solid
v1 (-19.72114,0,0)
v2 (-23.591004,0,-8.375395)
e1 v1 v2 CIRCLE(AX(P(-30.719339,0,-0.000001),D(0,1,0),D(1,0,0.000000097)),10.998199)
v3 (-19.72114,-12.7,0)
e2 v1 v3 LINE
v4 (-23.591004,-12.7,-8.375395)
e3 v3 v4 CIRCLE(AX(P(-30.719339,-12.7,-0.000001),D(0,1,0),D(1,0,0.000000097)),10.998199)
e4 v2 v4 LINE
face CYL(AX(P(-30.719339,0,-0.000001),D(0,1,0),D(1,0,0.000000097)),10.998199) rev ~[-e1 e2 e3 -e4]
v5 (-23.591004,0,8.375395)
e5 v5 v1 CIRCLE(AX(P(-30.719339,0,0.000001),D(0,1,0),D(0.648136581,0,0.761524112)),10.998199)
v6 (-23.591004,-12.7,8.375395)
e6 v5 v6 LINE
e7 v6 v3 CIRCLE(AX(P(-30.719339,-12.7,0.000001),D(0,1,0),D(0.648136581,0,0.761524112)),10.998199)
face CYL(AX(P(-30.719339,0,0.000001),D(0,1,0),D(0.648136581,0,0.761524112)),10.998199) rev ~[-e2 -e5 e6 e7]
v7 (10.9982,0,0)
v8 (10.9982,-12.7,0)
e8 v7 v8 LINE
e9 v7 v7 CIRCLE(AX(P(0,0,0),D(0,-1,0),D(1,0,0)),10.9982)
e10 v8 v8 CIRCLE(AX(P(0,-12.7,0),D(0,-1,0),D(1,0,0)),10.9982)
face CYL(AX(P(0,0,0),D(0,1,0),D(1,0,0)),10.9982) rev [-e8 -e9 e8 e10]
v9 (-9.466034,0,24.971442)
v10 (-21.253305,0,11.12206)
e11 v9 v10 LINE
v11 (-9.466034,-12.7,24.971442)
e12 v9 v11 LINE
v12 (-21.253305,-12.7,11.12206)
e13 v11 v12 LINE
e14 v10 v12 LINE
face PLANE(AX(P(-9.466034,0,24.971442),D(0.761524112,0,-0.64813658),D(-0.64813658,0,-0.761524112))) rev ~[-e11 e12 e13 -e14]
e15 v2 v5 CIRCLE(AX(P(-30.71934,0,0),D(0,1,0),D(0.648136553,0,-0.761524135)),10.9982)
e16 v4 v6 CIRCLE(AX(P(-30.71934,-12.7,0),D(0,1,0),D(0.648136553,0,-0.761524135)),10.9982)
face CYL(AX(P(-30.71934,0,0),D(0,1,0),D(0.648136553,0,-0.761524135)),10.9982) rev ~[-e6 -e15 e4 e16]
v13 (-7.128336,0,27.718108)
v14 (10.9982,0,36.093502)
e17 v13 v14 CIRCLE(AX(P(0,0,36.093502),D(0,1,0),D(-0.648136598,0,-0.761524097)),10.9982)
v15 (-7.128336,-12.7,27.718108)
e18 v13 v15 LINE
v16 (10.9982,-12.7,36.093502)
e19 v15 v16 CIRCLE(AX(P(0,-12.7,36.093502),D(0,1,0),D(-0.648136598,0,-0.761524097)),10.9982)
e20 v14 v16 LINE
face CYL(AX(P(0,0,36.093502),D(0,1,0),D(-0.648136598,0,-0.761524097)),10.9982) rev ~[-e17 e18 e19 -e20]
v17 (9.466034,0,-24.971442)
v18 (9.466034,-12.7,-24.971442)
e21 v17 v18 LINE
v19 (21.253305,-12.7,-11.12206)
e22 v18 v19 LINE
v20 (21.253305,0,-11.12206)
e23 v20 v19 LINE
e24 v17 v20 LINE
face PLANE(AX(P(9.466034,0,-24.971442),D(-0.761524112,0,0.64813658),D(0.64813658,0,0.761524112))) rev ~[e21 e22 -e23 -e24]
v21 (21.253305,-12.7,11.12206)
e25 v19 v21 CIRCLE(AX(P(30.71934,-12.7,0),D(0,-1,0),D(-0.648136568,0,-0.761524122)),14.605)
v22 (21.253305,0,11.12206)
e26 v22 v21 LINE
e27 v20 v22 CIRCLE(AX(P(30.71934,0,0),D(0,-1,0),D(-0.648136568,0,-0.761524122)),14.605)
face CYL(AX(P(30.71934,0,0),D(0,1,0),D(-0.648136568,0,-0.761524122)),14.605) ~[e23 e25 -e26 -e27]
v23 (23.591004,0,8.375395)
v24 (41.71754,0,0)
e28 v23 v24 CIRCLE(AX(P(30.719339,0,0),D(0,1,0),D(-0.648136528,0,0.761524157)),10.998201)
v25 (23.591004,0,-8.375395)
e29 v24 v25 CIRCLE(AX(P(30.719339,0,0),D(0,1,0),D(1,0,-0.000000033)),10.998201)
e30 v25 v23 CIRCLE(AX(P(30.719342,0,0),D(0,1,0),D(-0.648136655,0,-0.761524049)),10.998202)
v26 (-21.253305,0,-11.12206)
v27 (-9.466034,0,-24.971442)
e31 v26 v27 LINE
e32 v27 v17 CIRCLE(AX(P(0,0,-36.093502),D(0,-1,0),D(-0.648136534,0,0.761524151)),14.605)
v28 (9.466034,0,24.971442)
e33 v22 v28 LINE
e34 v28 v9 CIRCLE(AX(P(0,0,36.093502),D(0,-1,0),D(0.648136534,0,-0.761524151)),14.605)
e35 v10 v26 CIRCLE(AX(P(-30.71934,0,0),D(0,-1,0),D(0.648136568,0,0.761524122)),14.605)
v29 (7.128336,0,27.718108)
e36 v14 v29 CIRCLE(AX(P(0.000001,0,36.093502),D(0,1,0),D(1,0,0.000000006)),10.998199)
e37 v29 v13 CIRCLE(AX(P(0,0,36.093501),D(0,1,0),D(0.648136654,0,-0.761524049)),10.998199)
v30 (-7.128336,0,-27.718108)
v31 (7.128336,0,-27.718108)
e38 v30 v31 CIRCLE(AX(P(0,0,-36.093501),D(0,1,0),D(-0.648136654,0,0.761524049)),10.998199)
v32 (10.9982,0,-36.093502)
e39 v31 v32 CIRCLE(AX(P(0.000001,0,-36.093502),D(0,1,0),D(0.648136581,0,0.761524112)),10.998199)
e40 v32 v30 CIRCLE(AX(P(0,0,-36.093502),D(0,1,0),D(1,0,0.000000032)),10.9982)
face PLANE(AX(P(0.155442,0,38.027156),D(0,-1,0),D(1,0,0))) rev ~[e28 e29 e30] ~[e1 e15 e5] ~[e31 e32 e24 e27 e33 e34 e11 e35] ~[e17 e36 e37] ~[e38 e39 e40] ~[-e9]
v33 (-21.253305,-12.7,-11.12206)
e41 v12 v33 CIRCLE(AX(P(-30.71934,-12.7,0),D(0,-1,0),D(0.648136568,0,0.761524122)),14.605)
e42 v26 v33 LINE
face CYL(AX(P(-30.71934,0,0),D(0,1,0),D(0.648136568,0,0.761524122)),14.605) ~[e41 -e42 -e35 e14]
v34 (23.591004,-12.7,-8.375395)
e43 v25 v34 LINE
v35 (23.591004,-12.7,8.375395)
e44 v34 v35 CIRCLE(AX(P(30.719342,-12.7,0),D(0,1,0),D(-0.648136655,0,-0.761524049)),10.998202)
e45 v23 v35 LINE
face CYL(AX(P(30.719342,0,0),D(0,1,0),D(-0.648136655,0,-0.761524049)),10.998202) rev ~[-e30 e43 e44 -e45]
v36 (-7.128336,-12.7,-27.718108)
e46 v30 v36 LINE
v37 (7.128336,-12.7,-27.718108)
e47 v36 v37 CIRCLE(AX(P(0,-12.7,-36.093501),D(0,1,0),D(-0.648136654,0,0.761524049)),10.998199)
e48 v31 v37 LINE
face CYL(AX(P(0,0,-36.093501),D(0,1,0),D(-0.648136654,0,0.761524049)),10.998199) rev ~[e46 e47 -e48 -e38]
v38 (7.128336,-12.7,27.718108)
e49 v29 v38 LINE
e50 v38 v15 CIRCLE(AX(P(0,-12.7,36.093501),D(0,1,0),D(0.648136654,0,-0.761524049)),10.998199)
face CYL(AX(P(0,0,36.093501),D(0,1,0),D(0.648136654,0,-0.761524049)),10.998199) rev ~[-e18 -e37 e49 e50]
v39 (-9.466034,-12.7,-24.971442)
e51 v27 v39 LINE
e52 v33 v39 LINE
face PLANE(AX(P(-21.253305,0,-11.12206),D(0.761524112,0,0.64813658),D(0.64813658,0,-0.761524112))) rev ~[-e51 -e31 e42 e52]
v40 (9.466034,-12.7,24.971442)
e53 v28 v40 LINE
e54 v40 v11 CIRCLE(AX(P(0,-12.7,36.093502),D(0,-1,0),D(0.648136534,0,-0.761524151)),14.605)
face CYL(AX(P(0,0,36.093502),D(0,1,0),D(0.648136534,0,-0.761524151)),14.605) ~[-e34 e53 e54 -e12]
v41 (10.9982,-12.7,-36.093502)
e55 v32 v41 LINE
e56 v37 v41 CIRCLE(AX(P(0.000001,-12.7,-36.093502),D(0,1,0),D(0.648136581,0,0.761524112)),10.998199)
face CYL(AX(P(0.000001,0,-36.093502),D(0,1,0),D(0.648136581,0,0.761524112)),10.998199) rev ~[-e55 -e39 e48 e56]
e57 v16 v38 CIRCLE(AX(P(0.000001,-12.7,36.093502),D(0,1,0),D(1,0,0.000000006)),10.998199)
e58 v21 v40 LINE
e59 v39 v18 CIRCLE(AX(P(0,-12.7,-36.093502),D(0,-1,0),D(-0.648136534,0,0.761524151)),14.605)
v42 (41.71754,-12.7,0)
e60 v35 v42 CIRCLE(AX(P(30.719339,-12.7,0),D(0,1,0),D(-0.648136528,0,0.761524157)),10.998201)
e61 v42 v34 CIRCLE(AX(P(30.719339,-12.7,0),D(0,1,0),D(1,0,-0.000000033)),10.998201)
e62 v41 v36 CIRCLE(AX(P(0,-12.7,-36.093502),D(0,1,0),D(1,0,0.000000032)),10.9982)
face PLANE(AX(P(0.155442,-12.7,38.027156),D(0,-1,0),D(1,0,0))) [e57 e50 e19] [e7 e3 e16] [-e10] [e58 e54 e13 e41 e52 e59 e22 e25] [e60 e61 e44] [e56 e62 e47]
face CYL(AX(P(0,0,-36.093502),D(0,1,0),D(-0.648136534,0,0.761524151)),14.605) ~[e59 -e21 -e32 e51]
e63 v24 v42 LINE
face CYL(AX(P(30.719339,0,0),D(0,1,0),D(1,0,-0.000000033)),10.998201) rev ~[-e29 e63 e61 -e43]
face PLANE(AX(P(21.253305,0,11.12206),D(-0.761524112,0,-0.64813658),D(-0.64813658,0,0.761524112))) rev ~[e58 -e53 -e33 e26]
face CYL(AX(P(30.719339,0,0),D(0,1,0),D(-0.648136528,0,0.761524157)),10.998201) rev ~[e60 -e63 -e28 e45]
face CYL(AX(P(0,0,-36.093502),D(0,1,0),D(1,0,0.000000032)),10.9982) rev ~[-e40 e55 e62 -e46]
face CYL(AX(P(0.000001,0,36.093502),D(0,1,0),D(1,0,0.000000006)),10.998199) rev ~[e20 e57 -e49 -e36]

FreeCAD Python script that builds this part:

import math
import FreeCAD as App
import Part
import Sketcher
Q = App.Units.Quantity

doc = App.newDocument("Part")
body = doc.addObject("PartDesign::Body", "Body")

sketch1 = body.newObject("Sketcher::SketchObject", "Sketch")
sketch1.AttachmentSupport = (doc.getObject("XZ_Plane"), [""])
sketch1.MapMode = "FlatFace"
sketch1.addGeometry(Part.ArcOfCircle(Part.Circle(App.Vector(0, 36, 0), App.Vector(0, 0, 1), 15), math.radians(-50), math.radians(230)), False)
sketch1.addGeometry(Part.LineSegment(App.Vector(-9, 25, 0), App.Vector(-21, 11, 0)), False)
sketch1.addGeometry(Part.ArcOfCircle(Part.Circle(App.Vector(-31, 0, 0), App.Vector(0, 0, 1), 15), math.radians(50), math.radians(310)), False)
sketch1.addGeometry(Part.LineSegment(App.Vector(-21, -11, 0), App.Vector(-9, -25, 0)), False)
sketch1.addGeometry(Part.ArcOfCircle(Part.Circle(App.Vector(0, -36, 0), App.Vector(0, 0, 1), 15), math.radians(130), math.radians(410)), False)
sketch1.addGeometry(Part.LineSegment(App.Vector(9, -25, 0), App.Vector(21, -11, 0)), False)
sketch1.addGeometry(Part.ArcOfCircle(Part.Circle(App.Vector(31, 0, 0), App.Vector(0, 0, 1), 15), math.radians(-130), math.radians(130)), False)
sketch1.addGeometry(Part.LineSegment(App.Vector(21, 11, 0), App.Vector(9, 25, 0)), False)
sketch1.addGeometry(Part.ArcOfCircle(Part.Circle(App.Vector(0, -36, 0), App.Vector(0, 0, 1), 11), math.radians(50), math.radians(130)), False)
sketch1.addGeometry(Part.ArcOfCircle(Part.Circle(App.Vector(0, -36, 0), App.Vector(0, 0, 1), 11), math.radians(0), math.radians(50)), False)
sketch1.addGeometry(Part.ArcOfCircle(Part.Circle(App.Vector(0, -36, 0), App.Vector(0, 0, 1), 11), math.radians(130), math.radians(360)), False)
sketch1.addGeometry(Part.ArcOfCircle(Part.Circle(App.Vector(-31, 0, 0), App.Vector(0, 0, 1), 11), math.radians(0), math.radians(50)), False)
sketch1.addGeometry(Part.ArcOfCircle(Part.Circle(App.Vector(-31, 0, 0), App.Vector(0, 0, 1), 11), math.radians(-50), math.radians(0)), False)
sketch1.addGeometry(Part.ArcOfCircle(Part.Circle(App.Vector(-31, 0, 0), App.Vector(0, 0, 1), 11), math.radians(50), math.radians(310)), False)
sketch1.addGeometry(Part.ArcOfCircle(Part.Circle(App.Vector(31, 0, 0), App.Vector(0, 0, 1), 11), math.radians(130), math.radians(230)), False)
sketch1.addGeometry(Part.ArcOfCircle(Part.Circle(App.Vector(31, 0, 0), App.Vector(0, 0, 1), 11), math.radians(0), math.radians(130)), False)
sketch1.addGeometry(Part.ArcOfCircle(Part.Circle(App.Vector(31, 0, 0), App.Vector(0, 0, 1), 11), math.radians(-130), math.radians(0)), False)
sketch1.addGeometry(Part.Circle(App.Vector(0, 0, 0), App.Vector(0, 0, 1), 11), False)
sketch1.addGeometry(Part.ArcOfCircle(Part.Circle(App.Vector(0, 36, 0), App.Vector(0, 0, 1), 11), math.radians(-50), math.radians(0)), False)
sketch1.addGeometry(Part.ArcOfCircle(Part.Circle(App.Vector(0, 36, 0), App.Vector(0, 0, 1), 11), math.radians(-130), math.radians(-50)), False)
sketch1.addGeometry(Part.ArcOfCircle(Part.Circle(App.Vector(0, 36, 0), App.Vector(0, 0, 1), 11), math.radians(0), math.radians(230)), False)
sketch1.addConstraint(Sketcher.Constraint("Coincident", 0, 2, 1, 1))
sketch1.addConstraint(Sketcher.Constraint("Coincident", 1, 2, 2, 1))
sketch1.addConstraint(Sketcher.Constraint("Coincident", 2, 2, 3, 1))
sketch1.addConstraint(Sketcher.Constraint("Coincident", 3, 2, 4, 1))
sketch1.addConstraint(Sketcher.Constraint("Coincident", 4, 2, 5, 1))
sketch1.addConstraint(Sketcher.Constraint("Coincident", 5, 2, 6, 1))
sketch1.addConstraint(Sketcher.Constraint("Coincident", 6, 2, 7, 1))
sketch1.addConstraint(Sketcher.Constraint("Coincident", 7, 2, 0, 1))
sketch1.addConstraint(Sketcher.Constraint("Tangent", 8, 1, 9, 2))
sketch1.addConstraint(Sketcher.Constraint("Tangent", 9, 1, 10, 2))
sketch1.addConstraint(Sketcher.Constraint("Tangent", 10, 1, 8, 2))
sketch1.addConstraint(Sketcher.Constraint("Tangent", 11, 1, 12, 2))
sketch1.addConstraint(Sketcher.Constraint("Tangent", 12, 1, 13, 2))
sketch1.addConstraint(Sketcher.Constraint("Tangent", 13, 1, 11, 2))
sketch1.addConstraint(Sketcher.Constraint("Tangent", 14, 1, 15, 2))
sketch1.addConstraint(Sketcher.Constraint("Tangent", 15, 1, 16, 2))
sketch1.addConstraint(Sketcher.Constraint("Tangent", 16, 1, 14, 2))
sketch1.addConstraint(Sketcher.Constraint("Tangent", 18, 1, 19, 2))
sketch1.addConstraint(Sketcher.Constraint("Tangent", 19, 1, 20, 2))
sketch1.addConstraint(Sketcher.Constraint("Tangent", 20, 1, 18, 2))
sketch1.addConstraint(Sketcher.Constraint("Coincident", 17, 3, -1, 1))
sketch1.addConstraint(Sketcher.Constraint("Coincident", 8, 3, 4, 3))
sketch1.addConstraint(Sketcher.Constraint("Coincident", 11, 3, 2, 3))
sketch1.addConstraint(Sketcher.Constraint("Coincident", 14, 3, 6, 3))
sketch1.addConstraint(Sketcher.Constraint("Coincident", 18, 3, 0, 3))
sketch1.addConstraint(Sketcher.Constraint("Equal", 0, 2))
sketch1.addConstraint(Sketcher.Constraint("Equal", 2, 4))
sketch1.addConstraint(Sketcher.Constraint("Equal", 4, 6))
sketch1.addConstraint(Sketcher.Constraint("Equal", 10, 11))
sketch1.addConstraint(Sketcher.Constraint("Equal", 13, 14))
sketch1.addConstraint(Sketcher.Constraint("Equal", 16, 17))
sketch1.addConstraint(Sketcher.Constraint("Equal", 17, 18))
sketch1.addConstraint(Sketcher.Constraint("Symmetric", 0, 3, 4, 3, -1, 1))
sketch1.addConstraint(Sketcher.Constraint("Symmetric", 2, 3, 6, 3, -1, 1))
sketch1.addConstraint(Sketcher.Constraint("Symmetric", 3, 2, 4, 2, -2))
sketch1.addConstraint(Sketcher.Constraint("Symmetric", 2, 2, 5, 2, -2))
sketch1.addConstraint(Sketcher.Constraint("PointOnObject", 11, 1, -1))
sketch1.addConstraint(Sketcher.Constraint("PointOnObject", 15, 1, -1))
sketch1.addConstraint(Sketcher.Constraint("Parallel", 1, 5))
sketch1.addConstraint(Sketcher.Constraint("Parallel", 3, 7))
sketch1.addConstraint(Sketcher.Constraint("Horizontal", 1, 2, 6, 2))
sketch1.addConstraint(Sketcher.Constraint("Horizontal", 10, 3, 9, 1))
sketch1.addConstraint(Sketcher.Constraint("Horizontal", 8, 1, 10, 1))
sketch1.addConstraint(Sketcher.Constraint("Horizontal", 13, 1, 14, 1))
sketch1.addConstraint(Sketcher.Constraint("Horizontal", 12, 1, 16, 1))
sketch1.addConstraint(Sketcher.Constraint("Horizontal", 18, 1, 19, 1))
sketch1.addConstraint(Sketcher.Constraint("Horizontal", 19, 3, 20, 1))
sketch1.addConstraint(Sketcher.Constraint("Vertical", 1, 2, 2, 2))
sketch1.addConstraint(Sketcher.Constraint("Vertical", 12, 1, 13, 1))
sketch1.addConstraint(Sketcher.Constraint("Vertical", 8, 1, 18, 1))
sketch1.addConstraint(Sketcher.Constraint("Diameter", 17, Q("0.866 in")))
sketch1.addConstraint(Sketcher.Constraint("Radius", 0, Q("0.575 in")))
sketch1.addConstraint(Sketcher.Constraint("Distance", 1, Q("0.716 in")))
sketch1.addConstraint(Sketcher.Constraint("DistanceY", 8, 3, -1, 1, 36.093501))
sketch1.addConstraint(Sketcher.Constraint("DistanceX", 3, 2, 10, 1, 2.337698))
sketch1.addConstraint(Sketcher.Constraint("DistanceX", 12, 1, 2, 2, 2.337699))
sketch1.addConstraint(Sketcher.Constraint("DistanceY", -1, 1, 1, 2, 11.12206))
sketch1.addConstraint(Sketcher.Constraint("DistanceY", 3, 2, -1, 1, 24.971442))
pad1 = body.newObject("PartDesign::Pad", "Pad")
pad1.Profile = sketch1
pad1.Length = Q("0.5 in")

doc.recompute()
